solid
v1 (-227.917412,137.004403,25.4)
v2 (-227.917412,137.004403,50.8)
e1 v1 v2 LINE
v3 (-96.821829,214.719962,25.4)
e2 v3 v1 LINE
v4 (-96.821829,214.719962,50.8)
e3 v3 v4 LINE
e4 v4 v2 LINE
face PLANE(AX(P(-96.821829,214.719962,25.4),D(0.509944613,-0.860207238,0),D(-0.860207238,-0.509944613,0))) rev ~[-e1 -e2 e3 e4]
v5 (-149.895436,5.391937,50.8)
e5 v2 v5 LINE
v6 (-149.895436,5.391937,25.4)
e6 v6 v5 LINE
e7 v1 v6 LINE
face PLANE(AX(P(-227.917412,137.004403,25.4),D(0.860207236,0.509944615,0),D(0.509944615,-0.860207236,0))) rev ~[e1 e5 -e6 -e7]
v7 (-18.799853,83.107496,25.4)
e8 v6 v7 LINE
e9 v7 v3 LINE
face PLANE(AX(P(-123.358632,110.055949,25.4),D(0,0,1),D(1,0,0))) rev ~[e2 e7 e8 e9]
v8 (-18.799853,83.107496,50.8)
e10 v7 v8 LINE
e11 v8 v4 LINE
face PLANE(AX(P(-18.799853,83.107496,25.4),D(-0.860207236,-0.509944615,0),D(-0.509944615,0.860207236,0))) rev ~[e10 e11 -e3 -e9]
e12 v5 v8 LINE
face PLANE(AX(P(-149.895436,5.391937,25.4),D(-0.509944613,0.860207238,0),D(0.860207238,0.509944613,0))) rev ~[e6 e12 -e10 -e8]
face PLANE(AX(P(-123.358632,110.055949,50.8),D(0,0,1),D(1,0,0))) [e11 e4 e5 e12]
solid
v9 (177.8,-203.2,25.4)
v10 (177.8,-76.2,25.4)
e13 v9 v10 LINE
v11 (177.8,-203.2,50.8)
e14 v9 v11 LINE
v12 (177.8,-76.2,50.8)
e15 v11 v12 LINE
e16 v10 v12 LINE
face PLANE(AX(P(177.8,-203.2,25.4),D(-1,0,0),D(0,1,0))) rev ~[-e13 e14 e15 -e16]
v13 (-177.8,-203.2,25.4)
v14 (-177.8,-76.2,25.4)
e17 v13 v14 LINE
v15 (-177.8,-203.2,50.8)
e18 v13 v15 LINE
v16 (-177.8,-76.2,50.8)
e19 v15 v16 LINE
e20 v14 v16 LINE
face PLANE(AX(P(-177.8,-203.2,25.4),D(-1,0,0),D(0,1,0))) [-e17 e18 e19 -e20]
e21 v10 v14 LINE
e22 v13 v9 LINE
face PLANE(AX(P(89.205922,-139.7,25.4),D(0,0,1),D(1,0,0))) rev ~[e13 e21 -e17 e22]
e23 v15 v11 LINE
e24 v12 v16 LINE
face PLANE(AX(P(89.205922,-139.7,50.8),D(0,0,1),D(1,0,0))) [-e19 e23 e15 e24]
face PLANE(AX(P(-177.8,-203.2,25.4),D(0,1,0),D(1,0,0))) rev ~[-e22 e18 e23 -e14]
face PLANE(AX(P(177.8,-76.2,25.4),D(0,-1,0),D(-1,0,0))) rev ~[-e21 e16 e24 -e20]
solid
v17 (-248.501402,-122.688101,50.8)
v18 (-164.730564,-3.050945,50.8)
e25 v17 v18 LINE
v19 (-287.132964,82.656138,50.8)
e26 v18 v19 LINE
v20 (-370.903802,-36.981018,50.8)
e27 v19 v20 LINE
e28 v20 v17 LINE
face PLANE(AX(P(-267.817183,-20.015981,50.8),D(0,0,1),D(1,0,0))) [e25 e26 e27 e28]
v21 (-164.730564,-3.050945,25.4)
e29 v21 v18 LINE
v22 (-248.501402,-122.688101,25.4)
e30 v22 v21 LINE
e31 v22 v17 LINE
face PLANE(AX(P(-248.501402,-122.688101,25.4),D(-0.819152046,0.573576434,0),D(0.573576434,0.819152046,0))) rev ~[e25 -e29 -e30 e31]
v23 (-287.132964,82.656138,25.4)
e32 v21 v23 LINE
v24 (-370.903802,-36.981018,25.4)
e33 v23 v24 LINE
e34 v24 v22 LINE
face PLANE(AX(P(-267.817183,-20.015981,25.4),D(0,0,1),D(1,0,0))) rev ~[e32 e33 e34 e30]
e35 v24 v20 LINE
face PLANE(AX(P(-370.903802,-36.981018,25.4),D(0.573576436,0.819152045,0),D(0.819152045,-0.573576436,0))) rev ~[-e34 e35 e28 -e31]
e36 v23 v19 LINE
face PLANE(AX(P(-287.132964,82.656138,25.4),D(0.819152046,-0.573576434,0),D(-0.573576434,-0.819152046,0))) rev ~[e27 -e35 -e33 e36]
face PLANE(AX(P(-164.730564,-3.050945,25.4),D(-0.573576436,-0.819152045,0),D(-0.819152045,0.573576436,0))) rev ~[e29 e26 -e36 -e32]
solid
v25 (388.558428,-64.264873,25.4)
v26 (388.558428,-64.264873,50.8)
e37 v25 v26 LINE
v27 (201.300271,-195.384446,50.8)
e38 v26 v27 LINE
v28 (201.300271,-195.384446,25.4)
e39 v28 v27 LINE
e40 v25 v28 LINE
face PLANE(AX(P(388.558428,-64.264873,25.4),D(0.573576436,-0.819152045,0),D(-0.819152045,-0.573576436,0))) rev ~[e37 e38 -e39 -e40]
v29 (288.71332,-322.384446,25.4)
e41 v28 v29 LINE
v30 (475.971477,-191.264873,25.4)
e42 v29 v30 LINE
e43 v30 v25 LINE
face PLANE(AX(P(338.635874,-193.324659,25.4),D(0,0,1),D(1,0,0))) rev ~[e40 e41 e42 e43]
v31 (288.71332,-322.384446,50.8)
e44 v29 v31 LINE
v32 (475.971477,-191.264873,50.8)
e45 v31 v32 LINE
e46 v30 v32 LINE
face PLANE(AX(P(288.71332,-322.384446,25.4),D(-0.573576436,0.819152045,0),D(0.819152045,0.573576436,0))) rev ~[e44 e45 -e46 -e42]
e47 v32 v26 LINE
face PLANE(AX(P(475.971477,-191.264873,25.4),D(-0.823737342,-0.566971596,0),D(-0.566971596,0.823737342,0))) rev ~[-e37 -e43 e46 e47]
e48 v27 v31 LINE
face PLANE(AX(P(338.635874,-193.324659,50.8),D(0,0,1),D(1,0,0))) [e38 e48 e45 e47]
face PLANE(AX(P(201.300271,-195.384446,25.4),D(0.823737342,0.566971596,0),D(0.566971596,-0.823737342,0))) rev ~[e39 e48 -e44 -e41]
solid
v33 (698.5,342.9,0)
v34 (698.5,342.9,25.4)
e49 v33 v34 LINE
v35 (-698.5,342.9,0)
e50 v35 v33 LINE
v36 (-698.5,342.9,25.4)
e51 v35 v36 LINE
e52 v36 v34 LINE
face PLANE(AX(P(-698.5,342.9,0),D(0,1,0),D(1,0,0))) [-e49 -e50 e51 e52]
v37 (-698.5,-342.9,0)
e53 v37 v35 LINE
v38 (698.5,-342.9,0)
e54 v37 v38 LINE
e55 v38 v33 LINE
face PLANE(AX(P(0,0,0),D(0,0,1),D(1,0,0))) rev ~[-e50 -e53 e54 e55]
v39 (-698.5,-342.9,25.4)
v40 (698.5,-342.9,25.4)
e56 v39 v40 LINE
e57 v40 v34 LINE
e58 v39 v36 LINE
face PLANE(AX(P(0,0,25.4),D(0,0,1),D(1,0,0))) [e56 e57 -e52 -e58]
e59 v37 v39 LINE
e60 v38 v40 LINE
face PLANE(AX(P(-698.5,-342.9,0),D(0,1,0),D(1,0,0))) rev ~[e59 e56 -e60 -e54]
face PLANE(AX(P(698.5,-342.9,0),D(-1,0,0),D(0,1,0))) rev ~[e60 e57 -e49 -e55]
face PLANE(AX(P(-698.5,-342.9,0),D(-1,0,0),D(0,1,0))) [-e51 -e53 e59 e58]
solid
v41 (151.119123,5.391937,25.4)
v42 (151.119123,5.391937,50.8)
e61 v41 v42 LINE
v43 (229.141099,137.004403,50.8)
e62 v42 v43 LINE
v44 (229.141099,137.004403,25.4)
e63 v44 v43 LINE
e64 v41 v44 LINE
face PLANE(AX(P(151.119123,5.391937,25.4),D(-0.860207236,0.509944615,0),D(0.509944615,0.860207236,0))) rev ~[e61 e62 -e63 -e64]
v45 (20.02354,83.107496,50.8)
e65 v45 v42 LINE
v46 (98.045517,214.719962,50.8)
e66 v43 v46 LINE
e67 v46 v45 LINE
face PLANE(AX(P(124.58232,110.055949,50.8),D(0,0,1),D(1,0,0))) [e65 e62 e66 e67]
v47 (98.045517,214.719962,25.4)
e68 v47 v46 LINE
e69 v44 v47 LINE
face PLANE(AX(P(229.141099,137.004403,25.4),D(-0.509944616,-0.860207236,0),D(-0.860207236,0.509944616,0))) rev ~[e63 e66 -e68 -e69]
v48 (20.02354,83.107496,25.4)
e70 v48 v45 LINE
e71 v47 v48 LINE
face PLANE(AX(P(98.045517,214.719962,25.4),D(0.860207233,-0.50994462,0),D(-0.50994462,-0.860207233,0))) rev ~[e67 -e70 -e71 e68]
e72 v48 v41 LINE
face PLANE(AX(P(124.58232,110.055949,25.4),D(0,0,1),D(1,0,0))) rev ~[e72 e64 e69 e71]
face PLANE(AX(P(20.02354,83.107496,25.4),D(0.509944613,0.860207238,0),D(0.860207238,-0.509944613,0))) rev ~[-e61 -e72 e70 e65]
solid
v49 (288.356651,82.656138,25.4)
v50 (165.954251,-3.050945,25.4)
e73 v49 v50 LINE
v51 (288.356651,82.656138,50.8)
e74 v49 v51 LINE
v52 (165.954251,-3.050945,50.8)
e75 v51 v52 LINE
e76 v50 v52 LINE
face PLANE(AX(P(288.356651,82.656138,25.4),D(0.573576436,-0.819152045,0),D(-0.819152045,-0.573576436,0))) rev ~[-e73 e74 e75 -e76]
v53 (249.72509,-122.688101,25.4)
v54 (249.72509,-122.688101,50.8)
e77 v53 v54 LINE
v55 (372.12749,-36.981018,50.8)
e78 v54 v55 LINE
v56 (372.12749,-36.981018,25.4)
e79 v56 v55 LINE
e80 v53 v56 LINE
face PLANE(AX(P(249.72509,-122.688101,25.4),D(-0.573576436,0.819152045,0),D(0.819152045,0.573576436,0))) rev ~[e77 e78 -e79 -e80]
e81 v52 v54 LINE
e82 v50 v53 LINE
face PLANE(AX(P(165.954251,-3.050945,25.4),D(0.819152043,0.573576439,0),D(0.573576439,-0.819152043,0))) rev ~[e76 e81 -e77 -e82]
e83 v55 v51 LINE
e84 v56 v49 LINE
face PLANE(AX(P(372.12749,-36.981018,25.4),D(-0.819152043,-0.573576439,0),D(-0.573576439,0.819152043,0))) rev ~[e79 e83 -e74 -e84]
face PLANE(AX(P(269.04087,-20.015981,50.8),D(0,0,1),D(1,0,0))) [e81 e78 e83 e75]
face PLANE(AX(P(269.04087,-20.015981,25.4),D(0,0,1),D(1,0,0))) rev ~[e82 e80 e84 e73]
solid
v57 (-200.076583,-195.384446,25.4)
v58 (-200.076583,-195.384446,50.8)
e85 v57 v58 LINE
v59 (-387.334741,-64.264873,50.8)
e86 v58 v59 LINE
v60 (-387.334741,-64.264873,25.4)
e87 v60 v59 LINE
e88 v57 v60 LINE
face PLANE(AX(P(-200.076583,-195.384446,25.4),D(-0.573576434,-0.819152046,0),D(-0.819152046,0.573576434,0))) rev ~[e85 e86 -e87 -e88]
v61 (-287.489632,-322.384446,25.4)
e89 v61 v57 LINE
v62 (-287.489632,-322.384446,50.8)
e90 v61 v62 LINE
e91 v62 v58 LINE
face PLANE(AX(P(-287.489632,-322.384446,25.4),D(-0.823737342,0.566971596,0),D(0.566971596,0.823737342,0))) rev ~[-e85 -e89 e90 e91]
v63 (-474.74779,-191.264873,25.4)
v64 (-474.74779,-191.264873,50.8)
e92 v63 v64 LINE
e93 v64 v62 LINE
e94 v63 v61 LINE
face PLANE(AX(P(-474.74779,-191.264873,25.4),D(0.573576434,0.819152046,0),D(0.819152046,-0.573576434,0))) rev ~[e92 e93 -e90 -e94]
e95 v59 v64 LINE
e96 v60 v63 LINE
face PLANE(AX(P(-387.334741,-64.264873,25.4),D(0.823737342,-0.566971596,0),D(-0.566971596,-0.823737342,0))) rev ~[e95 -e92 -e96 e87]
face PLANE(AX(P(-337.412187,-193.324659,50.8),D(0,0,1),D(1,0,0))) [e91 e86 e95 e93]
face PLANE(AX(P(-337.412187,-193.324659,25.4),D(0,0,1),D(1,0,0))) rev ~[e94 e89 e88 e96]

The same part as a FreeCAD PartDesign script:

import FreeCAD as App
import Part
import Sketcher
from FreeCAD import Vector
Q = App.Units.Quantity


def add_polygon(sketch, points):
    """Adds a closed chain of lines whose ends are joined by coincident constraints."""
    first, n = sketch.GeometryCount, len(points)
    for a, b in zip(points, points[1:] + points[:1]):
        sketch.addGeometry(Part.LineSegment(App.Vector(*a, 0), App.Vector(*b, 0)), False)
    for i in range(n):
        sketch.addConstraint(Sketcher.Constraint("Coincident", first + i, 2, first + (i + 1) % n, 1))

doc = App.newDocument("Part")
body = doc.addObject("PartDesign::Body", "Body")

# Sketch on XY plane
sketch1 = body.newObject("Sketcher::SketchObject", "Sketch")
sketch1.AttachmentSupport = (doc.getObject("XY_Plane"), [""])
sketch1.MapMode = "FlatFace"
add_polygon(sketch1, [(-698, 343), (-698, -343), (698, -343), (698, 343)])  # lines 0-3
sketch1.addConstraint([
    Sketcher.Constraint("Vertical", 0),
    Sketcher.Constraint("Horizontal", 1),
    Sketcher.Constraint("Vertical", 2),
    Sketcher.Constraint("Horizontal", 3),
    Sketcher.Constraint("Symmetric", 0, 2, 2, 2, -1, 1),
    Sketcher.Constraint("DistanceX", 1, 1, 1, 2, Q("55 in")),
    Sketcher.Constraint("DistanceY", 0, 2, 0, 1, Q("27 in")),
])
pad1 = body.newObject("PartDesign::Pad", "Pad")
pad1.Profile = sketch1
pad1.Length = Q("1 in")
body2 = doc.addObject("PartDesign::Body", "Body001")
body2.AllowCompound = True

# Sketch on XY plane
sketch2 = body2.newObject("Sketcher::SketchObject", "Sketch001")
sketch2.AttachmentSupport = (doc.getObject("XY_Plane001"), [""])
sketch2.MapMode = "FlatFace"
sketch2.AttachmentOffset = App.Placement(Vector(0, 0, 1 * 25.4), App.Rotation())
add_polygon(sketch2, [(178, -203), (178, -76), (-178, -76), (-178, -203)])  # lines 0-3
add_polygon(sketch2, [(-200, -195), (-387, -64), (-475, -191), (-287, -322)])  # lines 4-7
add_polygon(sketch2, [(-165, -3), (-287, 83), (-371, -37), (-249, -123)])  # lines 8-11
add_polygon(sketch2, [(-19, 83), (-97, 215), (-228, 137), (-150, 5)])  # lines 12-15
add_polygon(sketch2, [(229, 137), (98, 215), (20, 83), (151, 5)])  # lines 16-19
add_polygon(sketch2, [(372, -37), (288, 83), (166, -3), (250, -123)])  # lines 20-23
add_polygon(sketch2, [(476, -191), (389, -64), (201, -195), (289, -322)])  # lines 24-27
sketch2.addConstraint([
    Sketcher.Constraint("Vertical", 0),
    Sketcher.Constraint("Horizontal", 1),
    Sketcher.Constraint("Vertical", 2),
    Sketcher.Constraint("Horizontal", 3),
    Sketcher.Constraint("Parallel", 4, 6),
    Sketcher.Constraint("Parallel", 5, 7),
    Sketcher.Constraint("Parallel", 6, 8),
    Sketcher.Constraint("Perpendicular", 8, 9),
    Sketcher.Constraint("Perpendicular", 9, 10),
    Sketcher.Constraint("Perpendicular", 10, 11),
    Sketcher.Constraint("Perpendicular", 12, 13),
    Sketcher.Constraint("Perpendicular", 13, 14),
    Sketcher.Constraint("Perpendicular", 14, 15),
    Sketcher.Constraint("Perpendicular", 16, 17),
    Sketcher.Constraint("Perpendicular", 17, 18),
    Sketcher.Constraint("Perpendicular", 18, 19),
    Sketcher.Constraint("Perpendicular", 20, 21),
    Sketcher.Constraint("Perpendicular", 21, 22),
    Sketcher.Constraint("Perpendicular", 22, 23),
    Sketcher.Constraint("Parallel", 23, 25),
    Sketcher.Constraint("Parallel", 24, 26),
    Sketcher.Constraint("Parallel", 25, 27),
    Sketcher.Constraint("Horizontal", 12, 2, 16, 2),
    Sketcher.Constraint("Horizontal", 15, 2, 17, 2),
    Sketcher.Constraint("Horizontal", 14, 2, 18, 2),
    Sketcher.Constraint("Horizontal", 8, 2, 20, 2),
    Sketcher.Constraint("Horizontal", 11, 2, 21, 2),
    Sketcher.Constraint("Horizontal", 10, 2, 22, 2),
    Sketcher.Constraint("Horizontal", 4, 2, 24, 2),
    Sketcher.Constraint("Horizontal", 7, 2, 25, 2),
    Sketcher.Constraint("Horizontal", 6, 2, 26, 2),
    Sketcher.Constraint("Equal", 15, 16),
    Sketcher.Constraint("Equal", 11, 20),
    Sketcher.Constraint("Equal", 7, 24),
    Sketcher.Constraint("DistanceX", 1, 2, 1, 1, Q("14 in")),
    Sketcher.Constraint("DistanceY", 0, 1, 0, 2, Q("5 in")),
    Sketcher.Constraint("Distance", 4, Q("9 in")),
    Sketcher.Constraint("Distance", 13, Q("6 in")),
    Sketcher.Constraint("DistanceX", -1, 1, 0, 2, Q("7 in")),
    Sketcher.Constraint("DistanceY", 0, 2, -1, 1, Q("3 in")),
    Sketcher.Constraint("Angle", 4, Q("145 deg")),
    Sketcher.Constraint("DistanceY", 5, 2, 4, 2, Q("5 in")),
    Sketcher.Constraint("Distance", 9, Q("5.75 in")),
    Sketcher.Constraint("DistanceX", 9, 2, -1, 1, Q("370.903802 mm")),
    Sketcher.Constraint("DistanceY", 10, 2, -1, 1, Q("122.688101 mm")),
    Sketcher.Constraint("DistanceX", -1, 1, 19, 2, Q("229.141099 mm")),
    Sketcher.Constraint("DistanceX", 10, 2, 1, 2, Q("70.701402 mm")),
    Sketcher.Constraint("DistanceY", 7, 2, 11, 2, Q("192.333501 mm")),
    Sketcher.Constraint("DistanceY", 14, 2, 8, 2, Q("77.264201 mm")),
    Sketcher.Constraint("Distance", 5, Q("154.175358 mm")),
    Sketcher.Constraint("DistanceX", 4, 2, -1, 1, Q("387.334741 mm")),
    Sketcher.Constraint("DistanceX", 12, 2, -1, 1, Q("96.821829 mm")),
    Sketcher.Constraint("DistanceX", -1, 1, 17, 2, Q("20.02354 mm")),
    Sketcher.Constraint("DistanceX", -1, 1, 20, 2, Q("288.356651 mm")),
    Sketcher.Constraint("DistanceX", -1, 1, 24, 2, Q("388.558428 mm")),
    Sketcher.Constraint("DistanceY", 1, 2, 12, 2, Q("290.919962 mm")),
])
pad2 = body2.newObject("PartDesign::Pad", "Pad001")
pad2.Profile = sketch2
pad2.Length = Q("1 in")

doc.recompute()
